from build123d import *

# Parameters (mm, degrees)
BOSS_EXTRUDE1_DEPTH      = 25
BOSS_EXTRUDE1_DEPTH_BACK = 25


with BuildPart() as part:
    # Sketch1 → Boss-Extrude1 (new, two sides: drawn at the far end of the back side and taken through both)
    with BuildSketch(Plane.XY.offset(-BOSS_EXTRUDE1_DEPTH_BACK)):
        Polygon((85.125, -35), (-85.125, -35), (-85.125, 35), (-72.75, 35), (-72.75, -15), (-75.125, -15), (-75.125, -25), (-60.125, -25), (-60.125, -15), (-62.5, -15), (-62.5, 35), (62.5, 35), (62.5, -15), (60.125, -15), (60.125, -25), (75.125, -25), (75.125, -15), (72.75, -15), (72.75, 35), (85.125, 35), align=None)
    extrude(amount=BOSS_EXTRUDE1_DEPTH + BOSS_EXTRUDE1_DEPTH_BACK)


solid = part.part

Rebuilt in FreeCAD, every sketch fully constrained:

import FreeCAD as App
import Part
import Sketcher


def add_polygon(sketch, points):
    """Adds a closed chain of lines whose ends are joined by coincident constraints."""
    first, n = sketch.GeometryCount, len(points)
    for a, b in zip(points, points[1:] + points[:1]):
        sketch.addGeometry(Part.LineSegment(App.Vector(*a, 0), App.Vector(*b, 0)), False)
    for i in range(n):
        sketch.addConstraint(Sketcher.Constraint("Coincident", first + i, 2, first + (i + 1) % n, 1))

doc = App.newDocument("Part")
body = doc.addObject("PartDesign::Body", "Body")

# Sketch on XY plane
sketch1 = body.newObject("Sketcher::SketchObject", "Sketch")
sketch1.AttachmentSupport = (doc.getObject("XY_Plane"), [""])
sketch1.MapMode = "FlatFace"
add_polygon(sketch1, [(-85.1, -35), (85.1, -35), (85.1, 35), (72.8, 35), (72.8, -15), (75.1, -15), (75.1, -25), (60.1, -25), (60.1, -15), (62.5, -15), (62.5, 35), (-62.5, 35), (-62.5, -15), (-60.1, -15), (-60.1, -25), (-75.1, -25), (-75.1, -15), (-72.8, -15), (-72.8, 35), (-85.1, 35)])  # lines 0-19
sketch1.addConstraint([
    Sketcher.Constraint("Horizontal", 0),
    Sketcher.Constraint("Vertical", 1),
    Sketcher.Constraint("Horizontal", 2),
    Sketcher.Constraint("Vertical", 3),
    Sketcher.Constraint("Horizontal", 4),
    Sketcher.Constraint("Vertical", 5),
    Sketcher.Constraint("Horizontal", 6),
    Sketcher.Constraint("Vertical", 7),
    Sketcher.Constraint("Horizontal", 8),
    Sketcher.Constraint("Vertical", 9),
    Sketcher.Constraint("Horizontal", 10),
    Sketcher.Constraint("Vertical", 11),
    Sketcher.Constraint("Horizontal", 12),
    Sketcher.Constraint("Vertical", 13),
    Sketcher.Constraint("Horizontal", 14),
    Sketcher.Constraint("Vertical", 15),
    Sketcher.Constraint("Horizontal", 16),
    Sketcher.Constraint("Vertical", 17),
    Sketcher.Constraint("Horizontal", 18),
    Sketcher.Constraint("Vertical", 19),
    Sketcher.Constraint("Symmetric", 0, 2, 18, 2, -1, 1),
    Sketcher.Constraint("Symmetric", 8, 2, 11, 2, -2),
    Sketcher.Constraint("Symmetric", 6, 2, 13, 2, -2),
    Sketcher.Constraint("Symmetric", 4, 2, 15, 2, -2),
    Sketcher.Constraint("Symmetric", 2, 2, 17, 2, -2),
    Sketcher.Constraint("Horizontal", 4, 2, 7, 2),
    Sketcher.Constraint("Horizontal", 2, 2, 9, 2),
    Sketcher.Constraint("Equal", 4, 8),
    Sketcher.Constraint("DistanceX", 6, 2, 6, 1, 15.0),
    Sketcher.Constraint("DistanceX", 10, 2, 10, 1, 125.0),
    Sketcher.Constraint("DistanceY", 1, 1, 1, 2, 70.0),
    Sketcher.Constraint("DistanceY", 3, 2, 3, 1, 50.0),
    Sketcher.Constraint("DistanceY", 5, 2, 5, 1, 10.0),
    Sketcher.Constraint("DistanceX", 4, 2, 0, 2, 10.0),
    Sketcher.Constraint("DistanceX", 0, 1, 0, 2, 170.25),
])
pad1 = body.newObject("PartDesign::Pad", "Pad")
pad1.Profile = sketch1
pad1.Type = "TwoLengths"
pad1.Length = 25
pad1.Length2 = 25

doc.recompute()
